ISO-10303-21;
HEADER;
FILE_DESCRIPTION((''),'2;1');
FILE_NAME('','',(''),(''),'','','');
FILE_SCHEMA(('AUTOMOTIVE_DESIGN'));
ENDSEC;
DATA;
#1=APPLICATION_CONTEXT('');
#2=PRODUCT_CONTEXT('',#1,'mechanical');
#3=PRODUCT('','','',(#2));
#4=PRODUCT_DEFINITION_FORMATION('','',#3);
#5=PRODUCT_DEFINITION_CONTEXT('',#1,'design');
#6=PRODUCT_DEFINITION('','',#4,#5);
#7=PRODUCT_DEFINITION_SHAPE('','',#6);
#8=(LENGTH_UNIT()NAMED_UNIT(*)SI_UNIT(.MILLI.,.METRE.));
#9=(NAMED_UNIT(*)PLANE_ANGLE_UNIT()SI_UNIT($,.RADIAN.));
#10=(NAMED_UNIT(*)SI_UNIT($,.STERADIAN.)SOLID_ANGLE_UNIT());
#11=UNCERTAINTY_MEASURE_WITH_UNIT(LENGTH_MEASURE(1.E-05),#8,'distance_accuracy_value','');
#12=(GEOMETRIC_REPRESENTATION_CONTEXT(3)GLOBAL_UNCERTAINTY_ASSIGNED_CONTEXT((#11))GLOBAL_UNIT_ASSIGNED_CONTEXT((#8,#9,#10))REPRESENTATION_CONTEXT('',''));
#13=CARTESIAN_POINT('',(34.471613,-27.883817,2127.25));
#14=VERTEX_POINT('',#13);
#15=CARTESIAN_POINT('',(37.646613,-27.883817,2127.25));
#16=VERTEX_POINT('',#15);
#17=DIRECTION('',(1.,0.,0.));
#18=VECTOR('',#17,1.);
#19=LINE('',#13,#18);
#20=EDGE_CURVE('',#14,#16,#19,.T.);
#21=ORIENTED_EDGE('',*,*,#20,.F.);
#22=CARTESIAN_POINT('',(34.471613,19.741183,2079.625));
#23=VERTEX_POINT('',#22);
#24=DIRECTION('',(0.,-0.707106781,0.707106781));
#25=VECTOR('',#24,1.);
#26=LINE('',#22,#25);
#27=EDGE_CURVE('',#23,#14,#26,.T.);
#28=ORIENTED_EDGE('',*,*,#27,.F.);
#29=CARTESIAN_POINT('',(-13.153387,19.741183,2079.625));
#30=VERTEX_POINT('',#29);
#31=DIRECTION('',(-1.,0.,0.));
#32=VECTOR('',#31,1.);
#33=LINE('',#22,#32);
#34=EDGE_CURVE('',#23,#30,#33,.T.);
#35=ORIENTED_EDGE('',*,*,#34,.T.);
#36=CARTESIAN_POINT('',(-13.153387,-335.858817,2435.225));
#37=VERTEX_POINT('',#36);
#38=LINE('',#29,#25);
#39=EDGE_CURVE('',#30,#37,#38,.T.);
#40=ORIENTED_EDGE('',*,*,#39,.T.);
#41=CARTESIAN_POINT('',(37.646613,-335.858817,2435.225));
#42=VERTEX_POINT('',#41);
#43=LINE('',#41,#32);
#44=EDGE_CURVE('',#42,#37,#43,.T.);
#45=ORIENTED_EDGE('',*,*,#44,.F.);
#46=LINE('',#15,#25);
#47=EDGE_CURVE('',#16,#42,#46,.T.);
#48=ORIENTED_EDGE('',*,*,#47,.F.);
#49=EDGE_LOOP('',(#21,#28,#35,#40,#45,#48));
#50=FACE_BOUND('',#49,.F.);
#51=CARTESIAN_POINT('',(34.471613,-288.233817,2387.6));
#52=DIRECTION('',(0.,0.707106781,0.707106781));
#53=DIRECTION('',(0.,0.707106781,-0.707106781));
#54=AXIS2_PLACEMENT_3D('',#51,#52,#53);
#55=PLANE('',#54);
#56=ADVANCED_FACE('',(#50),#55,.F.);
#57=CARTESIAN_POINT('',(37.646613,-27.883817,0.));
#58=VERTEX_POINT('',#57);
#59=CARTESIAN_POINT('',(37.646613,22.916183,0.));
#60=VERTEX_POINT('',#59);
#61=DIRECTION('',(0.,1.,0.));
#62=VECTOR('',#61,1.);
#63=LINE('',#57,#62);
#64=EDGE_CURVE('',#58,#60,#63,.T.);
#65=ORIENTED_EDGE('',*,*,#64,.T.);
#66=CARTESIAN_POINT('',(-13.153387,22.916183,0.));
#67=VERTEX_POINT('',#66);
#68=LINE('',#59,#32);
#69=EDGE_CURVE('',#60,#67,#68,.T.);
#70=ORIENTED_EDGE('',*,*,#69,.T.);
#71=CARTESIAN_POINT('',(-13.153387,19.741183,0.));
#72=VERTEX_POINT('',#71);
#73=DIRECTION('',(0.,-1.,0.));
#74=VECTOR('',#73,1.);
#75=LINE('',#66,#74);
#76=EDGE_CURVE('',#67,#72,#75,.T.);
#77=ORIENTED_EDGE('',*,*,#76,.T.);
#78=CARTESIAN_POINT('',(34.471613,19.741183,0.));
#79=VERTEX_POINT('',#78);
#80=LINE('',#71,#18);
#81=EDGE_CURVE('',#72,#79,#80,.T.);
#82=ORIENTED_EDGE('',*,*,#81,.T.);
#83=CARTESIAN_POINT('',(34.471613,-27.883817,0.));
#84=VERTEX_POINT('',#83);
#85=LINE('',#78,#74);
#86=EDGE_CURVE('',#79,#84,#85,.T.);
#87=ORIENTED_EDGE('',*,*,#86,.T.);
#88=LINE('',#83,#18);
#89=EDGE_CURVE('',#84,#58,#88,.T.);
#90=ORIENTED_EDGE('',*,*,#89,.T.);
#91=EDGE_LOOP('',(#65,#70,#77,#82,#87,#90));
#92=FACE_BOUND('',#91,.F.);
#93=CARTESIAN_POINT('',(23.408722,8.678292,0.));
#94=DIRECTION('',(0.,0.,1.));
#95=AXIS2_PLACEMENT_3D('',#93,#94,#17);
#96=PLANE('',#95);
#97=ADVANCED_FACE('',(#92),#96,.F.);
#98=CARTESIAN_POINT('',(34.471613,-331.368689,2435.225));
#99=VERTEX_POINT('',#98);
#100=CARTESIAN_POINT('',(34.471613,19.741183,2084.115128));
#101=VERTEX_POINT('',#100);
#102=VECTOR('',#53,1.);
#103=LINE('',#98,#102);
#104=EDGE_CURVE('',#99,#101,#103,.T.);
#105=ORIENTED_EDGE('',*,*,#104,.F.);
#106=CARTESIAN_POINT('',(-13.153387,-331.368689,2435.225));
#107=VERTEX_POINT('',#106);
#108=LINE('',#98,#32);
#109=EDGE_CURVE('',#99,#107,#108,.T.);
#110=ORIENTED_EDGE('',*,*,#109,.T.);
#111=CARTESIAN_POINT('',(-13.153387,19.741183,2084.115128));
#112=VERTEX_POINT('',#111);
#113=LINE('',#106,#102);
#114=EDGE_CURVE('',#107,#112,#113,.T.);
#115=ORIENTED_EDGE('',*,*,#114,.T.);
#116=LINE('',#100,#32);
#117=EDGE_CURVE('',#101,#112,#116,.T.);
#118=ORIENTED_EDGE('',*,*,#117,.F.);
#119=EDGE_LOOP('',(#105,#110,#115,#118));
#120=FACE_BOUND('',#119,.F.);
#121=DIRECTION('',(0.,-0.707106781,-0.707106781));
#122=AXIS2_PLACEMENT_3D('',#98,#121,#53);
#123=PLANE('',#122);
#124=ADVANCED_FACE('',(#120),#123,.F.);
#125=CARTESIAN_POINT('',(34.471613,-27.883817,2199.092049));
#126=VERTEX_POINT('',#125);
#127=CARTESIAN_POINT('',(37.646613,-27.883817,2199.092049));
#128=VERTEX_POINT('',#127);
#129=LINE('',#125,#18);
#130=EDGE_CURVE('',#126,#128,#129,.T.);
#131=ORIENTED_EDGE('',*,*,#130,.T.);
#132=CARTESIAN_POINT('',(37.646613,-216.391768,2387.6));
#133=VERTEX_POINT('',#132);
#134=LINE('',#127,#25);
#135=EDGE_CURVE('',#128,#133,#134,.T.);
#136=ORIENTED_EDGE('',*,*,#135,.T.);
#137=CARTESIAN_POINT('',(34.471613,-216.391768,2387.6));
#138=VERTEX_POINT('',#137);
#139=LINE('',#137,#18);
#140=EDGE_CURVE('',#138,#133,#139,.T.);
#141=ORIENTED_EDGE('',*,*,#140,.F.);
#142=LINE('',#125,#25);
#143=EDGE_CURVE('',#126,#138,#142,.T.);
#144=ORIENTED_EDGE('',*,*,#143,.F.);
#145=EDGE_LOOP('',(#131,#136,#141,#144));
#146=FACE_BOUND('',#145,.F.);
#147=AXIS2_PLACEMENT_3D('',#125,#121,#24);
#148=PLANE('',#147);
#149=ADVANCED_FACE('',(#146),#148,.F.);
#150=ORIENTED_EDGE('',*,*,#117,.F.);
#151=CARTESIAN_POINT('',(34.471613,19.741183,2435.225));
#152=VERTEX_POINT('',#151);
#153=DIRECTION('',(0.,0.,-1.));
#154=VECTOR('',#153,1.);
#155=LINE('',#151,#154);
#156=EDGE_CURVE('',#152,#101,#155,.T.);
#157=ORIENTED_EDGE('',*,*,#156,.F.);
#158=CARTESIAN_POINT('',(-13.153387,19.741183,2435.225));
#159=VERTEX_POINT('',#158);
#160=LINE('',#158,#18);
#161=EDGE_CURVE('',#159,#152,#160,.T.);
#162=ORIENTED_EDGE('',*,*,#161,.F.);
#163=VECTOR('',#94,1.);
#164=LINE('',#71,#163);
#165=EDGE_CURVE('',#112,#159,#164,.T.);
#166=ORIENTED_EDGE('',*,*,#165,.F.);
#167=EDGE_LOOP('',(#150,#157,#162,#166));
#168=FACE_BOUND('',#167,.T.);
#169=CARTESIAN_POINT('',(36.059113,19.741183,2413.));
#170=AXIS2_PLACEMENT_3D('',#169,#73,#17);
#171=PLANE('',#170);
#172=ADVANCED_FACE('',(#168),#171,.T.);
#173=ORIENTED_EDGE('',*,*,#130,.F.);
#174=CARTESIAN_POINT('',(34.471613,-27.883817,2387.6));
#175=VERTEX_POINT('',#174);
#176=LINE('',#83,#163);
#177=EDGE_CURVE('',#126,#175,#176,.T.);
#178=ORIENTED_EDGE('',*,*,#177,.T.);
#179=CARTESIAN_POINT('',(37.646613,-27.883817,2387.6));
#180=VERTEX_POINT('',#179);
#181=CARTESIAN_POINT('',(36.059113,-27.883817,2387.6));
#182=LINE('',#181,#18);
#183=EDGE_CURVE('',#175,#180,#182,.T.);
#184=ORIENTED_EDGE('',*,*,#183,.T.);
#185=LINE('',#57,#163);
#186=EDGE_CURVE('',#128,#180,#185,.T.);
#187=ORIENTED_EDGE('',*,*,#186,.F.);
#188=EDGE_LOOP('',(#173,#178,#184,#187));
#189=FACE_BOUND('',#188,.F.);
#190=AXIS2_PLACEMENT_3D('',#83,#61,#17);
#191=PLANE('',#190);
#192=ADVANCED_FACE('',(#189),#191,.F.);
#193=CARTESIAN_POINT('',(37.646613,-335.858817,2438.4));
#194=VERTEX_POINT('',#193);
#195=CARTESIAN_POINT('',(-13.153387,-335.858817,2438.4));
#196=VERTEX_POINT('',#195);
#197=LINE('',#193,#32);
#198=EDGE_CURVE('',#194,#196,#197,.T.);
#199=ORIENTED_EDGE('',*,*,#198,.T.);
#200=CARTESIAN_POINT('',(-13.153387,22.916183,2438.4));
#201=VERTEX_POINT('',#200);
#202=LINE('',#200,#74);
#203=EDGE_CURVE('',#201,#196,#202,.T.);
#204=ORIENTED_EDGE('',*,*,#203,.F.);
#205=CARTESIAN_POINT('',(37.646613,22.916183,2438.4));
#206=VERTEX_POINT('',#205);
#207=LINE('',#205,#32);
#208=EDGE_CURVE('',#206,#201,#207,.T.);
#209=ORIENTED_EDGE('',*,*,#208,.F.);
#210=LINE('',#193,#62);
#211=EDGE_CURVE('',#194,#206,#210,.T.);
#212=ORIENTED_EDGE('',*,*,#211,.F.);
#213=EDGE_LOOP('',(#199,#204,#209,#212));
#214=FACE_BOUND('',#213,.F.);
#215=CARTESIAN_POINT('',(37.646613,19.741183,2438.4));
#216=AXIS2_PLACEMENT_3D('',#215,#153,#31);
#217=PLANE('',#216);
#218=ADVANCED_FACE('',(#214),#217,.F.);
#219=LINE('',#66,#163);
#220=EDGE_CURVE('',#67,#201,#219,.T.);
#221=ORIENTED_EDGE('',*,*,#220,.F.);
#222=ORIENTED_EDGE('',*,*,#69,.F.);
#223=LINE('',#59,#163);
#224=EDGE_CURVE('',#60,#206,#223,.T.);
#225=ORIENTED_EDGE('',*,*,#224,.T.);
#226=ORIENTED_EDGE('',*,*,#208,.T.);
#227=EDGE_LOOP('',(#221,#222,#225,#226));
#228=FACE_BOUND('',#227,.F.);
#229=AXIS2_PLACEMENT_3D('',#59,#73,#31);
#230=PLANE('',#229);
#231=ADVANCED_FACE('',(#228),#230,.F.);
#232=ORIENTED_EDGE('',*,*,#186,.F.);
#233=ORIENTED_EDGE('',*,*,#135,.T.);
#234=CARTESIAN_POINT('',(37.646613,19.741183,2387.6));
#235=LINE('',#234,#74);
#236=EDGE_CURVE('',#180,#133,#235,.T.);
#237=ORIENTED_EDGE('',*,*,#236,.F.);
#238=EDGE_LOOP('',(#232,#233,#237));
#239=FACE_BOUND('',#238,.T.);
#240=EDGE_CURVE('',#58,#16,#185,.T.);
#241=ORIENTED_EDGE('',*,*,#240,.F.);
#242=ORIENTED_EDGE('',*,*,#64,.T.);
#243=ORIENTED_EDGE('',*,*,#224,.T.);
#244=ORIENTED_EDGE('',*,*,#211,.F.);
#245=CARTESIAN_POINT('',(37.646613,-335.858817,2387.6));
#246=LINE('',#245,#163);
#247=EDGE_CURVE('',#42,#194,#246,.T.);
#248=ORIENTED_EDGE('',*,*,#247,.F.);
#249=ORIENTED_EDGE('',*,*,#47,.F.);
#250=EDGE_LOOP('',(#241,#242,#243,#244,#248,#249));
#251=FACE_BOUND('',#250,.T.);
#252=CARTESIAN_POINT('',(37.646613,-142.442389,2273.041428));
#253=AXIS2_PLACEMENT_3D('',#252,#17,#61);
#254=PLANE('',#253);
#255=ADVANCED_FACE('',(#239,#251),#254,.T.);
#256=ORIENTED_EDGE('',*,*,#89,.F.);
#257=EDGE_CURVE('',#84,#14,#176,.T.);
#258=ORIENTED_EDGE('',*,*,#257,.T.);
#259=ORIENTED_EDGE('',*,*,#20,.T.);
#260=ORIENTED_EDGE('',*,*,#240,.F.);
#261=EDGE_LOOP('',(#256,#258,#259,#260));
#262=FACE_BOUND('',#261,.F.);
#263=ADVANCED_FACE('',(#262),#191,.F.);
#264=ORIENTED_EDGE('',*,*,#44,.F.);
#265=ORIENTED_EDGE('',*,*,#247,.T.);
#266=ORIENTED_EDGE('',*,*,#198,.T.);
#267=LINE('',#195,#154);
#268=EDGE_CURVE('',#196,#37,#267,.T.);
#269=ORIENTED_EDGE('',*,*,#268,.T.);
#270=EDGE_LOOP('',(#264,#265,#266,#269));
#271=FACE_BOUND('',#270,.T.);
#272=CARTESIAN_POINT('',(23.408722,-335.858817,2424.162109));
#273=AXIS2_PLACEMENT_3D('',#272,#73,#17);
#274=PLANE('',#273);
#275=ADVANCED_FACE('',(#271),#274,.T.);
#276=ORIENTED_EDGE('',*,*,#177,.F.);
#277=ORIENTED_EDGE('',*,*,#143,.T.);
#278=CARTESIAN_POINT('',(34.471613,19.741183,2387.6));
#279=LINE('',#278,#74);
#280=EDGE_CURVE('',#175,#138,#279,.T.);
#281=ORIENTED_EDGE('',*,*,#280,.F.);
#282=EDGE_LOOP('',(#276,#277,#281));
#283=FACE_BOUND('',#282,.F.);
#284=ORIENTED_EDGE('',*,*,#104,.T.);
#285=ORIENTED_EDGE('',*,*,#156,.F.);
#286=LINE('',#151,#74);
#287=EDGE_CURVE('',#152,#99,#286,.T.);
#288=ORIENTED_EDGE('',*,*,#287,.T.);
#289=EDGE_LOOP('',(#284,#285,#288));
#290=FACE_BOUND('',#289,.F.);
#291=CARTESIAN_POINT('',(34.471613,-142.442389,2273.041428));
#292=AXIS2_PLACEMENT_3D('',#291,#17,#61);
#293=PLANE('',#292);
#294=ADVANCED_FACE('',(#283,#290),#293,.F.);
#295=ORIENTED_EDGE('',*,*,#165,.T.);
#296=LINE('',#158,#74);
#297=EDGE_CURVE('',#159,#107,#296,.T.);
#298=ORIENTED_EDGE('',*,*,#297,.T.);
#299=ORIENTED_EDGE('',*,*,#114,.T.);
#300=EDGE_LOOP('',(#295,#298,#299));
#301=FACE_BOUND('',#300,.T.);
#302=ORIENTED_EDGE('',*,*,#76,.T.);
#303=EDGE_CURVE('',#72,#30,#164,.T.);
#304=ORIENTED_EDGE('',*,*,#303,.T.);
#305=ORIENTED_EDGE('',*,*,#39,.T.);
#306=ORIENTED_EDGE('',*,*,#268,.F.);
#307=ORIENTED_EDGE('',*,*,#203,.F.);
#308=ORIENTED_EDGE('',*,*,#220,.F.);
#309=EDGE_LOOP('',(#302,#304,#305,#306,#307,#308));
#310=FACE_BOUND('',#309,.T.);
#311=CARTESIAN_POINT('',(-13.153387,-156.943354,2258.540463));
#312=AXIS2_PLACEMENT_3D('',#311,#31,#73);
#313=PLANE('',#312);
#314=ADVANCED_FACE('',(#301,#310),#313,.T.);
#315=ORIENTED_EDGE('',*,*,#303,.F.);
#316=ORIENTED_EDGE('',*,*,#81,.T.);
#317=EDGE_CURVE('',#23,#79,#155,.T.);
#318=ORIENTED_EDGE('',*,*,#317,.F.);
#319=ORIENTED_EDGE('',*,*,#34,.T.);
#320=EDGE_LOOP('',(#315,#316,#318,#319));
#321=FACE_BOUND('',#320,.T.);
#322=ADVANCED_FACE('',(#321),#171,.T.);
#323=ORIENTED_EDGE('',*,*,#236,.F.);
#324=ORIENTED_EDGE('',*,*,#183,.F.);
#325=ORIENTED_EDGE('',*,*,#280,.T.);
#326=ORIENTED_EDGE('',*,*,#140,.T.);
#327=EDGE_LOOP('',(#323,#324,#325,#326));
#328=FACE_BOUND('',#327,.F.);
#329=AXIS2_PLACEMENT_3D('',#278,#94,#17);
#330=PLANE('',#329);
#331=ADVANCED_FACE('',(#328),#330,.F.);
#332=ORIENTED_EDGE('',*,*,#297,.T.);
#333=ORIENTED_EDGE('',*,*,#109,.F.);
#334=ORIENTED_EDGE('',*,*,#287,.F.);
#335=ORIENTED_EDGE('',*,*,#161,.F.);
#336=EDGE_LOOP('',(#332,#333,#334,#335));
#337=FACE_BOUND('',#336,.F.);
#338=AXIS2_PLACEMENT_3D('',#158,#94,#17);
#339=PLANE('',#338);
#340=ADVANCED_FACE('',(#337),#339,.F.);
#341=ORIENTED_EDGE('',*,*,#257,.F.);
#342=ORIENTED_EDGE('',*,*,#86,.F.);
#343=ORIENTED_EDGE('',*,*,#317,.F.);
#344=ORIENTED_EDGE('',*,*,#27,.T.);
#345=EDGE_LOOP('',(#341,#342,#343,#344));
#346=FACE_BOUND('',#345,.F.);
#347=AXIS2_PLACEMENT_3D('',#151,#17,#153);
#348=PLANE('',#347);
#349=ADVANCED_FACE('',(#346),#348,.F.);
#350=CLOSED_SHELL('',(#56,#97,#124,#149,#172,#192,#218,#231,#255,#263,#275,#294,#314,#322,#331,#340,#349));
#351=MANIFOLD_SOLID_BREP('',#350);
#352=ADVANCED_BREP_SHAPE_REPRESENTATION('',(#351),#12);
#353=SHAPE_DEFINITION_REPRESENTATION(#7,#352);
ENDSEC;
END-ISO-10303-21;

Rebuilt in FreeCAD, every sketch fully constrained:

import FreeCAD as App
import Part
import Sketcher

V = App.Vector
Q = App.Units.Quantity

doc = App.newDocument("Part")
body = doc.addObject("PartDesign::Body", "Body")

sketch1 = body.newObject("Sketcher::SketchObject", "Sketch")
sketch1.AttachmentSupport = (doc.getObject("XY_Plane"), [""])
sketch1.MapMode = "FlatFace"
sketch1.addGeometry([
    Part.LineSegment(V(37.6, 22.9, 0), V(-13.2, 22.9, 0)),
    Part.LineSegment(V(-13.2, 22.9, 0), V(-13.2, 19.7, 0)),
    Part.LineSegment(V(-13.2, 19.7, 0), V(34.5, 19.7, 0)),
    Part.LineSegment(V(34.5, 19.7, 0), V(34.5, -27.9, 0)),
    Part.LineSegment(V(34.5, -27.9, 0), V(37.6, -27.9, 0)),
    Part.LineSegment(V(37.6, -27.9, 0), V(37.6, 22.9, 0)),
], False)
sketch1.addConstraint([
    Sketcher.Constraint("Coincident", 0, 2, 1, 1),
    Sketcher.Constraint("Coincident", 1, 2, 2, 1),
    Sketcher.Constraint("Coincident", 2, 2, 3, 1),
    Sketcher.Constraint("Coincident", 3, 2, 4, 1),
    Sketcher.Constraint("Coincident", 4, 2, 5, 1),
    Sketcher.Constraint("Coincident", 5, 2, 0, 1),
    Sketcher.Constraint("Horizontal", 0),
    Sketcher.Constraint("Vertical", 1),
    Sketcher.Constraint("Horizontal", 2),
    Sketcher.Constraint("Vertical", 3),
    Sketcher.Constraint("Horizontal", 4),
    Sketcher.Constraint("Vertical", 5),
    Sketcher.Constraint("Equal", 4, 1),
    Sketcher.Constraint("Equal", 2, 3),
    Sketcher.Constraint("DistanceX", 0, 2, 0, 1, Q("2 in")),
    Sketcher.Constraint("DistanceX", 2, 1, 2, 2, Q("1.875 in")),
    Sketcher.Constraint("DistanceX", 0, 2, -1, 1, Q("13.153387 mm")),
    Sketcher.Constraint("DistanceY", -1, 1, 0, 2, Q("22.916183 mm")),
])
pad1 = body.newObject("PartDesign::Pad", "Pad")
pad1.Profile = sketch1
pad1.Length = Q("96 in")

sketch2 = body.newObject("Sketcher::SketchObject", "Sketch001")
sketch2.AttachmentSupport = (doc.getObject("XZ_Plane"), [""])
sketch2.MapMode = "FlatFace"
sketch2.AttachmentOffset = App.Placement(V(0, 0, 27.883817), App.Rotation())
sketch2.addGeometry([
    Part.LineSegment(V(34.5, 2438.4, 0), V(34.5, 2387.6, 0)),
    Part.LineSegment(V(34.5, 2387.6, 0), V(37.6, 2387.6, 0)),
    Part.LineSegment(V(37.6, 2387.6, 0), V(37.6, 2438.4, 0)),
    Part.LineSegment(V(37.6, 2438.4, 0), V(34.5, 2438.4, 0)),
], False)
sketch2.addConstraint([
    Sketcher.Constraint("Coincident", 0, 2, 1, 1),
    Sketcher.Constraint("Coincident", 1, 2, 2, 1),
    Sketcher.Constraint("Coincident", 2, 2, 3, 1),
    Sketcher.Constraint("Coincident", 3, 2, 0, 1),
    Sketcher.Constraint("Vertical", 0),
    Sketcher.Constraint("Horizontal", 1),
    Sketcher.Constraint("Vertical", 2),
    Sketcher.Constraint("Horizontal", 3),
    Sketcher.Constraint("DistanceY", 0, 2, 0, 1, Q("2 in")),
    Sketcher.Constraint("DistanceY", -1, 1, 0, 2, Q("94 in")),
    Sketcher.Constraint("DistanceX", 1, 1, 1, 2, Q("0.125 in")),
    Sketcher.Constraint("DistanceX", -1, 1, 0, 2, Q("34.471613 mm")),
])
pocket1 = body.newObject("PartDesign::Pocket", "Pocket")
pocket1.Profile = sketch2
pocket1.Length = Q("1.875 in")

sketch3 = body.newObject("Sketcher::SketchObject", "Sketch002")
sketch3.AttachmentSupport = (doc.getObject("XZ_Plane"), [""])
sketch3.MapMode = "FlatFace"
sketch3.AttachmentOffset = App.Placement(V(0, 0, -19.741183), App.Rotation())
sketch3.addGeometry([
    Part.LineSegment(V(37.6, 2438.4, 0), V(-13.2, 2438.4, 0)),
    Part.LineSegment(V(-13.2, 2438.4, 0), V(-13.2, 2435.2, 0)),
    Part.LineSegment(V(-13.2, 2435.2, 0), V(34.5, 2435.2, 0)),
    Part.LineSegment(V(34.5, 2435.2, 0), V(34.5, 2387.6, 0)),
    Part.LineSegment(V(34.5, 2387.6, 0), V(37.6, 2387.6, 0)),
    Part.LineSegment(V(37.6, 2387.6, 0), V(37.6, 2438.4, 0)),
], False)
sketch3.addConstraint([
    Sketcher.Constraint("Coincident", 0, 2, 1, 1),
    Sketcher.Constraint("Coincident", 1, 2, 2, 1),
    Sketcher.Constraint("Coincident", 2, 2, 3, 1),
    Sketcher.Constraint("Coincident", 3, 2, 4, 1),
    Sketcher.Constraint("Coincident", 4, 2, 5, 1),
    Sketcher.Constraint("Coincident", 5, 2, 0, 1),
    Sketcher.Constraint("Horizontal", 0),
    Sketcher.Constraint("Vertical", 1),
    Sketcher.Constraint("Horizontal", 2),
    Sketcher.Constraint("Vertical", 3),
    Sketcher.Constraint("Horizontal", 4),
    Sketcher.Constraint("Vertical", 5),
    Sketcher.Constraint("Equal", 4, 1),
    Sketcher.Constraint("Equal", 2, 3),
    Sketcher.Constraint("DistanceX", 0, 2, 0, 1, Q("2 in")),
    Sketcher.Constraint("DistanceY", -1, 1, 0, 2, Q("96 in")),
    Sketcher.Constraint("DistanceX", 2, 1, 2, 2, Q("1.875 in")),
    Sketcher.Constraint("DistanceX", 0, 2, -1, 1, Q("13.153387 mm")),
])
pad2 = body.newObject("PartDesign::Pad", "Pad001")
pad2.Profile = sketch3
pad2.Length = Q("14 in")

sketch4 = body.newObject("Sketcher::SketchObject", "Sketch003")
sketch4.AttachmentSupport = (doc.getObject("YZ_Plane"), [""])
sketch4.MapMode = "FlatFace"
sketch4.AttachmentOffset = App.Placement(V(0, 0, 34.471613), App.Rotation())
sketch4.addGeometry([
    Part.LineSegment(V(19.7, 2079.6, 0), V(-335.9, 2435.2, 0)),
    Part.LineSegment(V(-335.9, 2435.2, 0), V(-331.4, 2435.2, 0)),
    Part.LineSegment(V(-331.4, 2435.2, 0), V(19.7, 2084.1, 0)),
    Part.LineSegment(V(19.7, 2084.1, 0), V(19.7, 2079.6, 0)),
], False)
sketch4.addConstraint([
    Sketcher.Constraint("Coincident", 0, 2, 1, 1),
    Sketcher.Constraint("Coincident", 1, 2, 2, 1),
    Sketcher.Constraint("Coincident", 2, 2, 3, 1),
    Sketcher.Constraint("Coincident", 3, 2, 0, 1),
    Sketcher.Constraint("Horizontal", 1),
    Sketcher.Constraint("Vertical", 3),
    Sketcher.Constraint("Parallel", 0, 2),
    Sketcher.Constraint("Equal", 1, 3),
    Sketcher.Constraint("DistanceX", 0, 2, 2, 2, Q("14 in")),
    Sketcher.Constraint("DistanceY", -1, 1, 0, 2, Q("95.875 in")),
    Sketcher.Constraint("DistanceX", 1, 1, 1, 2, Q("4.490128 mm")),
    Sketcher.Constraint("DistanceX", 1, 2, -1, 1, Q("331.368689 mm")),
])
pad3 = body.newObject("PartDesign::Pad", "Pad002")
pad3.Profile = sketch4
pad3.Length = Q("1.875 in")
pad3.Reversed = True

sketch5 = body.newObject("Sketcher::SketchObject", "Sketch004")
sketch5.AttachmentSupport = (doc.getObject("YZ_Plane"), [""])
sketch5.MapMode = "FlatFace"
sketch5.AttachmentOffset = App.Placement(V(0, 0, 34.471613), App.Rotation())
sketch5.addGeometry([
    Part.LineSegment(V(-216, 2388, 0), V(-288, 2388, 0)),
    Part.LineSegment(V(-288, 2388, 0), V(-28, 2127, 0)),
    Part.LineSegment(V(-28, 2127, 0), V(-28, 2199, 0)),
    Part.LineSegment(V(-28, 2199, 0), V(-216, 2388, 0)),
], False)
sketch5.addConstraint([
    Sketcher.Constraint("Coincident", 0, 2, 1, 1),
    Sketcher.Constraint("Coincident", 1, 2, 2, 1),
    Sketcher.Constraint("Coincident", 2, 2, 3, 1),
    Sketcher.Constraint("Coincident", 3, 2, 0, 1),
    Sketcher.Constraint("Horizontal", 0),
    Sketcher.Constraint("Vertical", 2),
    Sketcher.Constraint("Parallel", 1, 3),
    Sketcher.Constraint("Equal", 0, 2),
    Sketcher.Constraint("DistanceY", -1, 1, 0, 2, Q("94 in")),
    Sketcher.Constraint("DistanceY", -1, 1, 1, 2, Q("83.75 in")),
    Sketcher.Constraint("Distance", 3, Q("266.590501 mm")),
    Sketcher.Constraint("DistanceX", 3, 2, -1, 1, Q("216.391768 mm")),
])
pad4 = body.newObject("PartDesign::Pad", "Pad003")
pad4.Profile = sketch5
pad4.Length = Q("0.125 in")

sketch6 = body.newObject("Sketcher::SketchObject", "Sketch005")
sketch6.AttachmentSupport = (doc.getObject("YZ_Plane"), [""])
sketch6.MapMode = "FlatFace"
sketch6.AttachmentOffset = App.Placement(V(0, 0, 34.471613), App.Rotation())
sketch6.addGeometry([
    Part.LineSegment(V(-336, 2388, 0), V(-336, 2435, 0)),
    Part.LineSegment(V(-336, 2435, 0), V(-288, 2388, 0)),
    Part.LineSegment(V(-288, 2388, 0), V(-336, 2388, 0)),
], False)
sketch6.addConstraint([
    Sketcher.Constraint("Coincident", 0, 2, 1, 1),
    Sketcher.Constraint("Coincident", 1, 2, 2, 1),
    Sketcher.Constraint("Coincident", 2, 2, 0, 1),
    Sketcher.Constraint("Vertical", 0),
    Sketcher.Constraint("Horizontal", 2),
    Sketcher.Constraint("Equal", 2, 0),
    Sketcher.Constraint("DistanceY", -1, 1, 1, 2, Q("94 in")),
    Sketcher.Constraint("DistanceX", 2, 2, 2, 1, Q("1.875 in")),
    Sketcher.Constraint("DistanceX", 0, 2, -1, 1, Q("335.858817 mm")),
])
pocket2 = body.newObject("PartDesign::Pocket", "Pocket001")
pocket2.Profile = sketch6
pocket2.Length = Q("1 in")
pocket2.Reversed = True

doc.recompute()
